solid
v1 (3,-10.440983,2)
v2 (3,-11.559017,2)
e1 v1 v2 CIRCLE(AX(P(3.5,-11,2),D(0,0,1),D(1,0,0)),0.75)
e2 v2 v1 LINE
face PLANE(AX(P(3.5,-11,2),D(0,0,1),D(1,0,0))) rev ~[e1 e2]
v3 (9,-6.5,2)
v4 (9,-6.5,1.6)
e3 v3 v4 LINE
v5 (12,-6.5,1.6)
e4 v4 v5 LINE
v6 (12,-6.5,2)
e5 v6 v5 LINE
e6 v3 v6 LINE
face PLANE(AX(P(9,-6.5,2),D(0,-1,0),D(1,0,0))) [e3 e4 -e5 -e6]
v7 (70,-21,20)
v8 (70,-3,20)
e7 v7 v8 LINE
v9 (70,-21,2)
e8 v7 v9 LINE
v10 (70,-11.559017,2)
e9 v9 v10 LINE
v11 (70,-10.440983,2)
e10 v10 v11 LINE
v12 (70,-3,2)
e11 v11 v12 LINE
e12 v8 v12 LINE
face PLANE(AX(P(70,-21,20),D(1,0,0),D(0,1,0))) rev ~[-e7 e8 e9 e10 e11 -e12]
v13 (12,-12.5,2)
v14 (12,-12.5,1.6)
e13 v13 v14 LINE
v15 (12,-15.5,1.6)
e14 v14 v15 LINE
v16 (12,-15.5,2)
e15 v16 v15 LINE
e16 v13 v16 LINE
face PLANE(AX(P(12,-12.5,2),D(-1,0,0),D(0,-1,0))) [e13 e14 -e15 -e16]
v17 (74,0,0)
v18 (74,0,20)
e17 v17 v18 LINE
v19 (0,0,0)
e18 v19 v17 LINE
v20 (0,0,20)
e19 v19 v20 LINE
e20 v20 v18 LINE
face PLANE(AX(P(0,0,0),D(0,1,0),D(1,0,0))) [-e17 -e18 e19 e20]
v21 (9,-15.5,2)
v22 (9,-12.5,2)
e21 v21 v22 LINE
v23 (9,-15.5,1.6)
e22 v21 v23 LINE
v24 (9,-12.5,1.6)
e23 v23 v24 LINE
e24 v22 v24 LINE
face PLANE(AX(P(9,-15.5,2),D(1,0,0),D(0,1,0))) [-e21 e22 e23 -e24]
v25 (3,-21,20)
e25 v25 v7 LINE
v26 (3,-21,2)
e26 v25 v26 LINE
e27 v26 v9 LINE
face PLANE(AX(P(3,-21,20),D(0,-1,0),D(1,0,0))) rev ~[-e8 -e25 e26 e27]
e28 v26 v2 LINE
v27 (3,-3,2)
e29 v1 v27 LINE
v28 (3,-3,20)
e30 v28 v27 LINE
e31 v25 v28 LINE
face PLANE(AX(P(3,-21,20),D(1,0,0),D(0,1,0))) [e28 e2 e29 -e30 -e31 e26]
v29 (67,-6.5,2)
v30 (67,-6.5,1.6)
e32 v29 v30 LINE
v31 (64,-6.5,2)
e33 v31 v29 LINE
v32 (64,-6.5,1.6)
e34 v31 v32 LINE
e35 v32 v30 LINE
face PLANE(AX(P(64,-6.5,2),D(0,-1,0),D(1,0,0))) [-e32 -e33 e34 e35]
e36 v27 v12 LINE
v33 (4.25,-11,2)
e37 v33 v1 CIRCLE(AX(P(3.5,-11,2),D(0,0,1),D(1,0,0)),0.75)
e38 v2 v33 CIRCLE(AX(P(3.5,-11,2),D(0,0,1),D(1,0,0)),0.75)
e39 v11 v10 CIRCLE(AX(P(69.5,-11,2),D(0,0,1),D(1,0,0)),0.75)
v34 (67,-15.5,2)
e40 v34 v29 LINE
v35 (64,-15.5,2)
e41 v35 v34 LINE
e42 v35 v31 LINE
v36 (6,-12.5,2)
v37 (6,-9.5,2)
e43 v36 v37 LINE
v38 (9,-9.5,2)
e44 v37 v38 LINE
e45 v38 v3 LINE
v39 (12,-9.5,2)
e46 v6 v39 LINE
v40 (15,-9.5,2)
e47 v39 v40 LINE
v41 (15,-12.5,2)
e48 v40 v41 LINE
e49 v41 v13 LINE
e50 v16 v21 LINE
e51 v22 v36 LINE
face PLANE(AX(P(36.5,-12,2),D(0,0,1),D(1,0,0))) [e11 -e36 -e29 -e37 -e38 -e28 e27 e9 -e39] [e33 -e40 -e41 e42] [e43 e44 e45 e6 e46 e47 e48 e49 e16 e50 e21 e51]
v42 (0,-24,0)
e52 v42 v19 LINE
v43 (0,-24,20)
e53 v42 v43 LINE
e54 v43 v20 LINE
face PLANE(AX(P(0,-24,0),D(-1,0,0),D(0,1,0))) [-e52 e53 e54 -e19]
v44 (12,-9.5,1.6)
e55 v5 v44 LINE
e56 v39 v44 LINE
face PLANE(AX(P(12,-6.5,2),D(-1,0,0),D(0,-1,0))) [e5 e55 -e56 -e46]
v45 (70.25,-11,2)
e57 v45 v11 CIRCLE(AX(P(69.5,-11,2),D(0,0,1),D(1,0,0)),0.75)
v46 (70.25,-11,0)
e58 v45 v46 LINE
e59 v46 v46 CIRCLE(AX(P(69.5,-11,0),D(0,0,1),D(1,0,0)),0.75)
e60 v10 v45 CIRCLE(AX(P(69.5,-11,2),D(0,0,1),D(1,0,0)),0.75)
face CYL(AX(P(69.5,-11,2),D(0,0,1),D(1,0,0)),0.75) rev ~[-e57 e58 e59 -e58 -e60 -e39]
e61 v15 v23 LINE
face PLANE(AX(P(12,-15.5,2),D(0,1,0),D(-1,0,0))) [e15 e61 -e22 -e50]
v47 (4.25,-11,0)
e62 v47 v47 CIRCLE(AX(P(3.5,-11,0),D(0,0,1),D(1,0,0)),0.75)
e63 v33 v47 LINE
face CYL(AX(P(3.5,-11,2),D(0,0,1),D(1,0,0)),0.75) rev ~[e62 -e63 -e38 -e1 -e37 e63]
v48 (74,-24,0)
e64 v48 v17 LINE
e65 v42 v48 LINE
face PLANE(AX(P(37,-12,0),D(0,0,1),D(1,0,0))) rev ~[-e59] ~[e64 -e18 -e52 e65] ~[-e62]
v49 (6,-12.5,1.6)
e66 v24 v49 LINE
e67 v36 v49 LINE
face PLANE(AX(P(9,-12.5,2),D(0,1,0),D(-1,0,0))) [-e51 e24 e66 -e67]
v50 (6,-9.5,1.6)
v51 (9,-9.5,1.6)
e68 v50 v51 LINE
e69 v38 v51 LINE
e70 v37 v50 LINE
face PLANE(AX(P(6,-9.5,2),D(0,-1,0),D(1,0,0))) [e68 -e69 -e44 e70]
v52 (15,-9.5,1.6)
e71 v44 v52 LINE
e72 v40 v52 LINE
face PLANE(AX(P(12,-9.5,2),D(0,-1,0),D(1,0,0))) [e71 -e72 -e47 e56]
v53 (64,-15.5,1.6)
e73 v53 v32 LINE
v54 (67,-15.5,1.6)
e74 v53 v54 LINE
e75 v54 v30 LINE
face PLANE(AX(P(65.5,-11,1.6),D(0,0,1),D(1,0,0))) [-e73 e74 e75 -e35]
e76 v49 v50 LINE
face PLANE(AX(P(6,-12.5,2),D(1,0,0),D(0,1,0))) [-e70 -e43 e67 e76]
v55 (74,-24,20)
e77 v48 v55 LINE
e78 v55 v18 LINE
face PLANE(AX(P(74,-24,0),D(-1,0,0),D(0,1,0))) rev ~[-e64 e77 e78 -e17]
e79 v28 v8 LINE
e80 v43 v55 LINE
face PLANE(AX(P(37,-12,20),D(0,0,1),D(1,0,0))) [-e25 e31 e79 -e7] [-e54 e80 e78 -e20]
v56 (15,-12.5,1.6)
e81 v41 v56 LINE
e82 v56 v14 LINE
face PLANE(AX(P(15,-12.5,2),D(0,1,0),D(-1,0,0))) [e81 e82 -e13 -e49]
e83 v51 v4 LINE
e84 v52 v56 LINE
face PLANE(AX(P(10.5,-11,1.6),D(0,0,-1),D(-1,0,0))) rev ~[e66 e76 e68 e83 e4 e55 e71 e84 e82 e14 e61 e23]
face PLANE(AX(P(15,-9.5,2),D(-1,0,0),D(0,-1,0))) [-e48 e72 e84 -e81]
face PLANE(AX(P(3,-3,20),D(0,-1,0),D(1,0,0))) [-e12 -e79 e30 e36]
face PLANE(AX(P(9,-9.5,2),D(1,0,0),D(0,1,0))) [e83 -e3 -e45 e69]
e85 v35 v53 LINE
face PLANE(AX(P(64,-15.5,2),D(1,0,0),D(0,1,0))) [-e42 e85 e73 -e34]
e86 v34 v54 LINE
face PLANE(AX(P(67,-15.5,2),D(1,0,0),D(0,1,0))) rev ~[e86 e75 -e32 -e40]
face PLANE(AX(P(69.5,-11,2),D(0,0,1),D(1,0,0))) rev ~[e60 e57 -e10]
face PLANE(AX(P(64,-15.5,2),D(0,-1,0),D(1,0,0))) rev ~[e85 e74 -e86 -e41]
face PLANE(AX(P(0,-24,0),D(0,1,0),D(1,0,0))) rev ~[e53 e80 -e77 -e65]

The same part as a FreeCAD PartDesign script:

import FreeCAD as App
import Part
import Sketcher

V = App.Vector

doc = App.newDocument("Part")
body = doc.addObject("PartDesign::Body", "Body")

# Sketch on XY plane
sketch1 = body.newObject("Sketcher::SketchObject", "Sketch")
sketch1.AttachmentSupport = (doc.getObject("XY_Plane"), [""])
sketch1.MapMode = "FlatFace"
sketch1.addGeometry(Part.LineSegment(V(0, 0, 0), V(0, -24, 0)), False)
sketch1.addGeometry(Part.LineSegment(V(0, -24, 0), V(74, -24, 0)), False)
sketch1.addGeometry(Part.LineSegment(V(74, -24, 0), V(74, 0, 0)), False)
sketch1.addGeometry(Part.LineSegment(V(74, 0, 0), V(0, 0, 0)), False)
sketch1.addConstraint(Sketcher.Constraint("Coincident", 0, 2, 1, 1))
sketch1.addConstraint(Sketcher.Constraint("Coincident", 1, 2, 2, 1))
sketch1.addConstraint(Sketcher.Constraint("Coincident", 2, 2, 3, 1))
sketch1.addConstraint(Sketcher.Constraint("Coincident", 3, 2, 0, 1))
sketch1.addConstraint(Sketcher.Constraint("Vertical", 0))
sketch1.addConstraint(Sketcher.Constraint("Horizontal", 1))
sketch1.addConstraint(Sketcher.Constraint("Vertical", 2))
sketch1.addConstraint(Sketcher.Constraint("Horizontal", 3))
sketch1.addConstraint(Sketcher.Constraint("Coincident", 3, 2, -1, 1))
sketch1.addConstraint(Sketcher.Constraint("DistanceX", 1, 1, 1, 2, 74.0))
sketch1.addConstraint(Sketcher.Constraint("DistanceY", 0, 2, 0, 1, 24.0))
pad1 = body.newObject("PartDesign::Pad", "Pad")
pad1.Profile = sketch1
pad1.Length = 20

# Sketch on XY plane
sketch2 = body.newObject("Sketcher::SketchObject", "Sketch001")
sketch2.AttachmentSupport = (doc.getObject("XY_Plane"), [""])
sketch2.MapMode = "FlatFace"
sketch2.AttachmentOffset = App.Placement(V(0, 0, 20), App.Rotation())
sketch2.addGeometry(Part.LineSegment(V(3, -3, 0), V(3, -21, 0)), False)
sketch2.addGeometry(Part.LineSegment(V(3, -21, 0), V(70, -21, 0)), False)
sketch2.addGeometry(Part.LineSegment(V(70, -21, 0), V(70, -3, 0)), False)
sketch2.addGeometry(Part.LineSegment(V(70, -3, 0), V(3, -3, 0)), False)
sketch2.addConstraint(Sketcher.Constraint("Coincident", 0, 2, 1, 1))
sketch2.addConstraint(Sketcher.Constraint("Coincident", 1, 2, 2, 1))
sketch2.addConstraint(Sketcher.Constraint("Coincident", 2, 2, 3, 1))
sketch2.addConstraint(Sketcher.Constraint("Coincident", 3, 2, 0, 1))
sketch2.addConstraint(Sketcher.Constraint("Vertical", 0))
sketch2.addConstraint(Sketcher.Constraint("Horizontal", 1))
sketch2.addConstraint(Sketcher.Constraint("Vertical", 2))
sketch2.addConstraint(Sketcher.Constraint("Horizontal", 3))
sketch2.addConstraint(Sketcher.Constraint("DistanceX", 1, 1, 1, 2, 67.0))
sketch2.addConstraint(Sketcher.Constraint("DistanceY", 0, 2, 0, 1, 18.0))
sketch2.addConstraint(Sketcher.Constraint("DistanceX", -1, 1, 0, 2, 3.0))
sketch2.addConstraint(Sketcher.Constraint("DistanceY", 0, 2, -1, 1, 21.0))
pocket1 = body.newObject("PartDesign::Pocket", "Pocket")
pocket1.Profile = sketch2
pocket1.Length = 18

# Sketch on XY plane
sketch3 = body.newObject("Sketcher::SketchObject", "Sketch002")
sketch3.AttachmentSupport = (doc.getObject("XY_Plane"), [""])
sketch3.MapMode = "FlatFace"
sketch3.AttachmentOffset = App.Placement(V(0, 0, 2), App.Rotation())
sketch3.addGeometry(Part.Circle(V(3.5, -11, 0), V(0, 0, 1), 0.8), False)
sketch3.addGeometry(Part.Circle(V(69.5, -11, 0), V(0, 0, 1), 0.8), False)
sketch3.addConstraint(Sketcher.Constraint("Equal", 0, 1))
sketch3.addConstraint(Sketcher.Constraint("Horizontal", 0, 3, 1, 3))
sketch3.addConstraint(Sketcher.Constraint("Diameter", 0, 1.5))
sketch3.addConstraint(Sketcher.Constraint("DistanceY", 0, 3, -1, 1, 11.0))
sketch3.addConstraint(Sketcher.Constraint("DistanceX", 0, 3, 1, 3, 66.0))
sketch3.addConstraint(Sketcher.Constraint("DistanceX", -1, 1, 0, 3, 3.5))
pocket2 = body.newObject("PartDesign::Pocket", "Pocket001")
pocket2.Profile = sketch3
pocket2.Length = 2

# Sketch on XY plane
sketch4 = body.newObject("Sketcher::SketchObject", "Sketch003")
sketch4.AttachmentSupport = (doc.getObject("XY_Plane"), [""])
sketch4.MapMode = "FlatFace"
sketch4.AttachmentOffset = App.Placement(V(0, 0, 2), App.Rotation())
sketch4.addGeometry(Part.LineSegment(V(9, -6.5, 0), V(9, -9.5, 0)), False)
sketch4.addGeometry(Part.LineSegment(V(9, -9.5, 0), V(6, -9.5, 0)), False)
sketch4.addGeometry(Part.LineSegment(V(6, -9.5, 0), V(6, -12.5, 0)), False)
sketch4.addGeometry(Part.LineSegment(V(6, -12.5, 0), V(9, -12.5, 0)), False)
sketch4.addGeometry(Part.LineSegment(V(9, -12.5, 0), V(9, -15.5, 0)), False)
sketch4.addGeometry(Part.LineSegment(V(9, -15.5, 0), V(12, -15.5, 0)), False)
sketch4.addGeometry(Part.LineSegment(V(12, -15.5, 0), V(12, -12.5, 0)), False)
sketch4.addGeometry(Part.LineSegment(V(12, -12.5, 0), V(15, -12.5, 0)), False)
sketch4.addGeometry(Part.LineSegment(V(15, -12.5, 0), V(15, -9.5, 0)), False)
sketch4.addGeometry(Part.LineSegment(V(15, -9.5, 0), V(12, -9.5, 0)), False)
sketch4.addGeometry(Part.LineSegment(V(12, -9.5, 0), V(12, -6.5, 0)), False)
sketch4.addGeometry(Part.LineSegment(V(12, -6.5, 0), V(9, -6.5, 0)), False)
sketch4.addGeometry(Part.LineSegment(V(64, -6.5, 0), V(64, -15.5, 0)), False)
sketch4.addGeometry(Part.LineSegment(V(64, -15.5, 0), V(67, -15.5, 0)), False)
sketch4.addGeometry(Part.LineSegment(V(67, -15.5, 0), V(67, -6.5, 0)), False)
sketch4.addGeometry(Part.LineSegment(V(67, -6.5, 0), V(64, -6.5, 0)), False)
sketch4.addConstraint(Sketcher.Constraint("Coincident", 0, 2, 1, 1))
sketch4.addConstraint(Sketcher.Constraint("Coincident", 1, 2, 2, 1))
sketch4.addConstraint(Sketcher.Constraint("Coincident", 2, 2, 3, 1))
sketch4.addConstraint(Sketcher.Constraint("Coincident", 3, 2, 4, 1))
sketch4.addConstraint(Sketcher.Constraint("Coincident", 4, 2, 5, 1))
sketch4.addConstraint(Sketcher.Constraint("Coincident", 5, 2, 6, 1))
sketch4.addConstraint(Sketcher.Constraint("Coincident", 6, 2, 7, 1))
sketch4.addConstraint(Sketcher.Constraint("Coincident", 7, 2, 8, 1))
sketch4.addConstraint(Sketcher.Constraint("Coincident", 8, 2, 9, 1))
sketch4.addConstraint(Sketcher.Constraint("Coincident", 9, 2, 10, 1))
sketch4.addConstraint(Sketcher.Constraint("Coincident", 10, 2, 11, 1))
sketch4.addConstraint(Sketcher.Constraint("Coincident", 11, 2, 0, 1))
sketch4.addConstraint(Sketcher.Constraint("Coincident", 12, 2, 13, 1))
sketch4.addConstraint(Sketcher.Constraint("Coincident", 13, 2, 14, 1))
sketch4.addConstraint(Sketcher.Constraint("Coincident", 14, 2, 15, 1))
sketch4.addConstraint(Sketcher.Constraint("Coincident", 15, 2, 12, 1))
sketch4.addConstraint(Sketcher.Constraint("Vertical", 0))
sketch4.addConstraint(Sketcher.Constraint("Horizontal", 1))
sketch4.addConstraint(Sketcher.Constraint("Vertical", 2))
sketch4.addConstraint(Sketcher.Constraint("Horizontal", 3))
sketch4.addConstraint(Sketcher.Constraint("Vertical", 4))
sketch4.addConstraint(Sketcher.Constraint("Horizontal", 5))
sketch4.addConstraint(Sketcher.Constraint("Vertical", 6))
sketch4.addConstraint(Sketcher.Constraint("Horizontal", 7))
sketch4.addConstraint(Sketcher.Constraint("Vertical", 8))
sketch4.addConstraint(Sketcher.Constraint("Horizontal", 9))
sketch4.addConstraint(Sketcher.Constraint("Vertical", 10))
sketch4.addConstraint(Sketcher.Constraint("Horizontal", 11))
sketch4.addConstraint(Sketcher.Constraint("Vertical", 12))
sketch4.addConstraint(Sketcher.Constraint("Horizontal", 13))
sketch4.addConstraint(Sketcher.Constraint("Vertical", 14))
sketch4.addConstraint(Sketcher.Constraint("Horizontal", 15))
sketch4.addConstraint(Sketcher.Constraint("Horizontal", 3, 2, 6, 2))
sketch4.addConstraint(Sketcher.Constraint("Horizontal", 1, 2, 8, 2))
sketch4.addConstraint(Sketcher.Constraint("Horizontal", 5, 2, 12, 2))
sketch4.addConstraint(Sketcher.Constraint("Horizontal", 11, 2, 14, 2))
sketch4.addConstraint(Sketcher.Constraint("Vertical", 0, 2, 3, 2))
sketch4.addConstraint(Sketcher.Constraint("Vertical", 6, 2, 9, 2))
sketch4.addConstraint(Sketcher.Constraint("Equal", 3, 5))
sketch4.addConstraint(Sketcher.Constraint("Equal", 5, 7))
sketch4.addConstraint(Sketcher.Constraint("Equal", 11, 13))
sketch4.addConstraint(Sketcher.Constraint("Equal", 15, 0))
sketch4.addConstraint(Sketcher.Constraint("Equal", 0, 2))
sketch4.addConstraint(Sketcher.Constraint("Equal", 2, 4))
sketch4.addConstraint(Sketcher.Constraint("DistanceX", 1, 2, 1, 1, 3.0))
sketch4.addConstraint(Sketcher.Constraint("DistanceX", -1, 1, 0, 2, 9.0))
sketch4.addConstraint(Sketcher.Constraint("DistanceX", -1, 1, 12, 2, 64.0))
sketch4.addConstraint(Sketcher.Constraint("DistanceY", 0, 2, -1, 1, 9.5))
pocket3 = body.newObject("PartDesign::Pocket", "Pocket002")
pocket3.Profile = sketch4
pocket3.Length = 0.4

doc.recompute()
